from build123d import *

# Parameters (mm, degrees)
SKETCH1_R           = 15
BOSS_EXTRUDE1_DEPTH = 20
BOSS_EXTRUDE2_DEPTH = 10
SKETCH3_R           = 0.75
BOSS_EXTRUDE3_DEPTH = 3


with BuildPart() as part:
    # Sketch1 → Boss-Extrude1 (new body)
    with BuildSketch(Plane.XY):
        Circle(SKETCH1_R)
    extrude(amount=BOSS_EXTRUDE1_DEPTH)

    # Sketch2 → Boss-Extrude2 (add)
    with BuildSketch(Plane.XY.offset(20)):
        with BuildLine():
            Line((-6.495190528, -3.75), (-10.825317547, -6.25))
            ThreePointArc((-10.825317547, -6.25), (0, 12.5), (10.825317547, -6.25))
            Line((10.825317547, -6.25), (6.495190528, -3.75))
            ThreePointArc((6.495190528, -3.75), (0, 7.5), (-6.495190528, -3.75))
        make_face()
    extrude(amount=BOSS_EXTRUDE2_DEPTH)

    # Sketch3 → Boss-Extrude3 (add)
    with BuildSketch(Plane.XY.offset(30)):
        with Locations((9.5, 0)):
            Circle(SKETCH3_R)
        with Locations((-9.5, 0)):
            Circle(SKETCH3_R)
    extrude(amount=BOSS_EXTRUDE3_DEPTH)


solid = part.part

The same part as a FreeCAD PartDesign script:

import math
import FreeCAD as App
import Part
import Sketcher

V = App.Vector
Q = App.Units.Quantity

doc = App.newDocument("Part")
body = doc.addObject("PartDesign::Body", "Body")

# Sketch on XY plane
sketch1 = doc.addObject("Sketcher::SketchObject", "Sketch")
body.addObject(sketch1)
sketch1.AttachmentSupport = (doc.XY_Plane, [""])
sketch1.MapMode = "FlatFace"
sketch1.addGeometry(Part.Circle(V(0, 0, 0), V(0, 0, 1), 15), False)
sketch1.addConstraint([
    Sketcher.Constraint("Coincident", 0, 3, -1, 1),
    Sketcher.Constraint("Diameter", 0, Q("30 mm")),
])
pad1 = doc.addObject("PartDesign::Pad", "Pad")
body.addObject(pad1)
pad1.Profile = sketch1
pad1.Length = 20

# Sketch on XY plane
sketch2 = doc.addObject("Sketcher::SketchObject", "Sketch001")
body.addObject(sketch2)
sketch2.AttachmentSupport = (doc.XY_Plane, [""])
sketch2.MapMode = "FlatFace"
sketch2.AttachmentOffset = App.Placement(V(0, 0, 20), App.Rotation())
sketch2.addGeometry([
    Part.LineSegment(V(-10.825318, -6.25, 0), V(-6.495191, -3.75, 0)),
    Part.ArcOfCircle(Part.Circle(V(0, 0, 0), V(0, 0, 1), 7.5), math.radians(-30), math.radians(210)),
    Part.LineSegment(V(6.495191, -3.75, 0), V(10.825318, -6.25, 0)),
    Part.ArcOfCircle(Part.Circle(V(0, 0, 0), V(0, 0, 1), 12.5), math.radians(-30), math.radians(210)),
], False)
sketch2.addConstraint([
    Sketcher.Constraint("Coincident", 0, 2, 1, 2),
    Sketcher.Constraint("Coincident", 1, 1, 2, 1),
    Sketcher.Constraint("Coincident", 2, 2, 3, 1),
    Sketcher.Constraint("Coincident", 3, 2, 0, 1),
    Sketcher.Constraint("Coincident", 1, 3, -1, 1),
    Sketcher.Constraint("Coincident", 3, 3, -1, 1),
    Sketcher.Constraint("Horizontal", 0, 2, 1, 1),
    Sketcher.Constraint("Horizontal", 2, 2, 3, 2),
    Sketcher.Constraint("Radius", 1, Q("7.5 mm")),
    Sketcher.Constraint("Radius", 3, Q("12.5 mm")),
    Sketcher.Constraint("Angle", 0, Q("30 deg")),
    Sketcher.Constraint("DistanceY", 0, 2, -1, 1, Q("3.75 mm")),
])
pad2 = doc.addObject("PartDesign::Pad", "Pad001")
body.addObject(pad2)
pad2.Profile = sketch2
pad2.Length = 10

# Sketch on XY plane
sketch3 = doc.addObject("Sketcher::SketchObject", "Sketch002")
body.addObject(sketch3)
sketch3.AttachmentSupport = (doc.XY_Plane, [""])
sketch3.MapMode = "FlatFace"
sketch3.AttachmentOffset = App.Placement(V(0, 0, 30), App.Rotation())
sketch3.addGeometry([
    Part.Circle(V(9.5, 0, 0), V(0, 0, 1), 0.75),
    Part.Circle(V(-9.5, 0, 0), V(0, 0, 1), 0.75),
], False)
sketch3.addConstraint([
    Sketcher.Constraint("Equal", 0, 1),
    Sketcher.Constraint("Symmetric", 0, 3, 1, 3, -1, 1),
    Sketcher.Constraint("PointOnObject", 0, 3, -1),
    Sketcher.Constraint("Diameter", 0, Q("1.5 mm")),
    Sketcher.Constraint("DistanceX", 1, 3, 0, 3, Q("19 mm")),
])
pad3 = doc.addObject("PartDesign::Pad", "Pad002")
body.addObject(pad3)
pad3.Profile = sketch3
pad3.Length = 3

doc.recompute()
